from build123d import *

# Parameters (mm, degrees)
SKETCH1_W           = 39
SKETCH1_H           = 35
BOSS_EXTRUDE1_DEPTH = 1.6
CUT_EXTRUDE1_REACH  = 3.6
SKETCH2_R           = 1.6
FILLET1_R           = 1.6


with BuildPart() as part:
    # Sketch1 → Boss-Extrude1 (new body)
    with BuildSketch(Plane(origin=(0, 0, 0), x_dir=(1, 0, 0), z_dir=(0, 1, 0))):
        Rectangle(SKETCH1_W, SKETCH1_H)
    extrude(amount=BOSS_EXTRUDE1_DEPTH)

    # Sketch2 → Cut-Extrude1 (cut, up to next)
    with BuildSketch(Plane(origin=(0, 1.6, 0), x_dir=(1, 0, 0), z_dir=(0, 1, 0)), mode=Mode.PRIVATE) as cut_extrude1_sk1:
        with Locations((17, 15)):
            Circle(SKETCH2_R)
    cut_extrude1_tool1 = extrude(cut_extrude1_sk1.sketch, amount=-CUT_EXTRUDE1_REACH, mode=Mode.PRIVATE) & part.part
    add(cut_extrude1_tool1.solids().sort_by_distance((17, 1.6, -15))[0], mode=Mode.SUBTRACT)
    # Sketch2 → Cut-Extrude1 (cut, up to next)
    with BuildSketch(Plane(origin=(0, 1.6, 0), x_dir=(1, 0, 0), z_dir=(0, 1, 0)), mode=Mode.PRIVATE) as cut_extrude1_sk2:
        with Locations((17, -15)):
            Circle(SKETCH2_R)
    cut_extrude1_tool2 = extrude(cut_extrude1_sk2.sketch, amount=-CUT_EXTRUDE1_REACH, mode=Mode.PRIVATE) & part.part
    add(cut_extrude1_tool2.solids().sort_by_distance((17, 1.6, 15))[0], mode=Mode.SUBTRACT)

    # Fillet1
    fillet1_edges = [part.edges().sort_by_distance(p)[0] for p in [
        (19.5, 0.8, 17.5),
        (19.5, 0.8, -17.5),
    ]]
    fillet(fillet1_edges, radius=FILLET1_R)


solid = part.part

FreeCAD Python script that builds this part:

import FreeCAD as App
import Part
import Sketcher

V = App.Vector


def edges_at(feature, points):
    """Names of the edges that pass closest to the given points."""
    edges = feature.Shape.Edges
    near = lambda p: min(range(len(edges)), key=lambda i: edges[i].distToShape(Part.Vertex(*p))[0])
    return sorted({f"Edge{near(p) + 1}" for p in points})


def add_polygon(sketch, points):
    """Adds a closed chain of lines whose ends are joined by coincident constraints."""
    first, n = sketch.GeometryCount, len(points)
    for a, b in zip(points, points[1:] + points[:1]):
        sketch.addGeometry(Part.LineSegment(App.Vector(*a, 0), App.Vector(*b, 0)), False)
    for i in range(n):
        sketch.addConstraint(Sketcher.Constraint("Coincident", first + i, 2, first + (i + 1) % n, 1))

doc = App.newDocument("Part")
body = doc.addObject("PartDesign::Body", "Body")

sketch1 = body.newObject("Sketcher::SketchObject", "Sketch")
sketch1.AttachmentSupport = (doc.getObject("XZ_Plane"), [""])
sketch1.MapMode = "FlatFace"
add_polygon(sketch1, [(-19.5, -17.5), (-19.5, 17.5), (19.5, 17.5), (19.5, -17.5)])
sketch1.addConstraint([
    Sketcher.Constraint("Vertical", 0),
    Sketcher.Constraint("Horizontal", 1),
    Sketcher.Constraint("Vertical", 2),
    Sketcher.Constraint("Horizontal", 3),
    Sketcher.Constraint("Symmetric", 0, 2, 2, 2, -1, 1),
    Sketcher.Constraint("DistanceX", 1, 1, 1, 2, 39.0),
    Sketcher.Constraint("DistanceY", 0, 1, 0, 2, 35.0),
])
pad1 = body.newObject("PartDesign::Pad", "Pad")
pad1.Profile = sketch1
pad1.Length = 1.6
pad1.Reversed = True

sketch2 = body.newObject("Sketcher::SketchObject", "Sketch001")
sketch2.AttachmentSupport = (doc.getObject("XZ_Plane"), [""])
sketch2.MapMode = "FlatFace"
sketch2.AttachmentOffset = App.Placement(V(0, 0, -1.6), App.Rotation())
sketch2.addGeometry(Part.Circle(V(17, -15, 0), V(0, 0, 1), 1.6), False)
sketch2.addConstraint([
    Sketcher.Constraint("Diameter", 0, 3.2),
    Sketcher.Constraint("DistanceX", -1, 1, 0, 3, 17.0),
    Sketcher.Constraint("DistanceY", 0, 3, -1, 1, 15.0),
])
pocket1 = body.newObject("PartDesign::Pocket", "Pocket")
pocket1.Profile = sketch2
pocket1.Type = "UpToFirst"
pocket1.Reversed = True

sketch3 = body.newObject("Sketcher::SketchObject", "Sketch002")
sketch3.AttachmentSupport = (doc.getObject("XZ_Plane"), [""])
sketch3.MapMode = "FlatFace"
sketch3.AttachmentOffset = App.Placement(V(0, 0, -1.6), App.Rotation())
sketch3.addGeometry(Part.Circle(V(17, 15, 0), V(0, 0, 1), 1.6), False)
sketch3.addConstraint([
    Sketcher.Constraint("Diameter", 0, 3.2),
    Sketcher.Constraint("DistanceX", -1, 1, 0, 3, 17.0),
    Sketcher.Constraint("DistanceY", -1, 1, 0, 3, 15.0),
])
pocket2 = body.newObject("PartDesign::Pocket", "Pocket001")
pocket2.Profile = sketch3
pocket2.Type = "UpToFirst"
pocket2.Reversed = True
doc.recompute()

fillet = body.newObject("PartDesign::Fillet", "Fillet")
fillet.Base = (pocket2, edges_at(pocket2, [(19.5, 0.8, 17.5), (19.5, 0.8, -17.5)]))
fillet.Radius = 1.6

doc.recompute()
